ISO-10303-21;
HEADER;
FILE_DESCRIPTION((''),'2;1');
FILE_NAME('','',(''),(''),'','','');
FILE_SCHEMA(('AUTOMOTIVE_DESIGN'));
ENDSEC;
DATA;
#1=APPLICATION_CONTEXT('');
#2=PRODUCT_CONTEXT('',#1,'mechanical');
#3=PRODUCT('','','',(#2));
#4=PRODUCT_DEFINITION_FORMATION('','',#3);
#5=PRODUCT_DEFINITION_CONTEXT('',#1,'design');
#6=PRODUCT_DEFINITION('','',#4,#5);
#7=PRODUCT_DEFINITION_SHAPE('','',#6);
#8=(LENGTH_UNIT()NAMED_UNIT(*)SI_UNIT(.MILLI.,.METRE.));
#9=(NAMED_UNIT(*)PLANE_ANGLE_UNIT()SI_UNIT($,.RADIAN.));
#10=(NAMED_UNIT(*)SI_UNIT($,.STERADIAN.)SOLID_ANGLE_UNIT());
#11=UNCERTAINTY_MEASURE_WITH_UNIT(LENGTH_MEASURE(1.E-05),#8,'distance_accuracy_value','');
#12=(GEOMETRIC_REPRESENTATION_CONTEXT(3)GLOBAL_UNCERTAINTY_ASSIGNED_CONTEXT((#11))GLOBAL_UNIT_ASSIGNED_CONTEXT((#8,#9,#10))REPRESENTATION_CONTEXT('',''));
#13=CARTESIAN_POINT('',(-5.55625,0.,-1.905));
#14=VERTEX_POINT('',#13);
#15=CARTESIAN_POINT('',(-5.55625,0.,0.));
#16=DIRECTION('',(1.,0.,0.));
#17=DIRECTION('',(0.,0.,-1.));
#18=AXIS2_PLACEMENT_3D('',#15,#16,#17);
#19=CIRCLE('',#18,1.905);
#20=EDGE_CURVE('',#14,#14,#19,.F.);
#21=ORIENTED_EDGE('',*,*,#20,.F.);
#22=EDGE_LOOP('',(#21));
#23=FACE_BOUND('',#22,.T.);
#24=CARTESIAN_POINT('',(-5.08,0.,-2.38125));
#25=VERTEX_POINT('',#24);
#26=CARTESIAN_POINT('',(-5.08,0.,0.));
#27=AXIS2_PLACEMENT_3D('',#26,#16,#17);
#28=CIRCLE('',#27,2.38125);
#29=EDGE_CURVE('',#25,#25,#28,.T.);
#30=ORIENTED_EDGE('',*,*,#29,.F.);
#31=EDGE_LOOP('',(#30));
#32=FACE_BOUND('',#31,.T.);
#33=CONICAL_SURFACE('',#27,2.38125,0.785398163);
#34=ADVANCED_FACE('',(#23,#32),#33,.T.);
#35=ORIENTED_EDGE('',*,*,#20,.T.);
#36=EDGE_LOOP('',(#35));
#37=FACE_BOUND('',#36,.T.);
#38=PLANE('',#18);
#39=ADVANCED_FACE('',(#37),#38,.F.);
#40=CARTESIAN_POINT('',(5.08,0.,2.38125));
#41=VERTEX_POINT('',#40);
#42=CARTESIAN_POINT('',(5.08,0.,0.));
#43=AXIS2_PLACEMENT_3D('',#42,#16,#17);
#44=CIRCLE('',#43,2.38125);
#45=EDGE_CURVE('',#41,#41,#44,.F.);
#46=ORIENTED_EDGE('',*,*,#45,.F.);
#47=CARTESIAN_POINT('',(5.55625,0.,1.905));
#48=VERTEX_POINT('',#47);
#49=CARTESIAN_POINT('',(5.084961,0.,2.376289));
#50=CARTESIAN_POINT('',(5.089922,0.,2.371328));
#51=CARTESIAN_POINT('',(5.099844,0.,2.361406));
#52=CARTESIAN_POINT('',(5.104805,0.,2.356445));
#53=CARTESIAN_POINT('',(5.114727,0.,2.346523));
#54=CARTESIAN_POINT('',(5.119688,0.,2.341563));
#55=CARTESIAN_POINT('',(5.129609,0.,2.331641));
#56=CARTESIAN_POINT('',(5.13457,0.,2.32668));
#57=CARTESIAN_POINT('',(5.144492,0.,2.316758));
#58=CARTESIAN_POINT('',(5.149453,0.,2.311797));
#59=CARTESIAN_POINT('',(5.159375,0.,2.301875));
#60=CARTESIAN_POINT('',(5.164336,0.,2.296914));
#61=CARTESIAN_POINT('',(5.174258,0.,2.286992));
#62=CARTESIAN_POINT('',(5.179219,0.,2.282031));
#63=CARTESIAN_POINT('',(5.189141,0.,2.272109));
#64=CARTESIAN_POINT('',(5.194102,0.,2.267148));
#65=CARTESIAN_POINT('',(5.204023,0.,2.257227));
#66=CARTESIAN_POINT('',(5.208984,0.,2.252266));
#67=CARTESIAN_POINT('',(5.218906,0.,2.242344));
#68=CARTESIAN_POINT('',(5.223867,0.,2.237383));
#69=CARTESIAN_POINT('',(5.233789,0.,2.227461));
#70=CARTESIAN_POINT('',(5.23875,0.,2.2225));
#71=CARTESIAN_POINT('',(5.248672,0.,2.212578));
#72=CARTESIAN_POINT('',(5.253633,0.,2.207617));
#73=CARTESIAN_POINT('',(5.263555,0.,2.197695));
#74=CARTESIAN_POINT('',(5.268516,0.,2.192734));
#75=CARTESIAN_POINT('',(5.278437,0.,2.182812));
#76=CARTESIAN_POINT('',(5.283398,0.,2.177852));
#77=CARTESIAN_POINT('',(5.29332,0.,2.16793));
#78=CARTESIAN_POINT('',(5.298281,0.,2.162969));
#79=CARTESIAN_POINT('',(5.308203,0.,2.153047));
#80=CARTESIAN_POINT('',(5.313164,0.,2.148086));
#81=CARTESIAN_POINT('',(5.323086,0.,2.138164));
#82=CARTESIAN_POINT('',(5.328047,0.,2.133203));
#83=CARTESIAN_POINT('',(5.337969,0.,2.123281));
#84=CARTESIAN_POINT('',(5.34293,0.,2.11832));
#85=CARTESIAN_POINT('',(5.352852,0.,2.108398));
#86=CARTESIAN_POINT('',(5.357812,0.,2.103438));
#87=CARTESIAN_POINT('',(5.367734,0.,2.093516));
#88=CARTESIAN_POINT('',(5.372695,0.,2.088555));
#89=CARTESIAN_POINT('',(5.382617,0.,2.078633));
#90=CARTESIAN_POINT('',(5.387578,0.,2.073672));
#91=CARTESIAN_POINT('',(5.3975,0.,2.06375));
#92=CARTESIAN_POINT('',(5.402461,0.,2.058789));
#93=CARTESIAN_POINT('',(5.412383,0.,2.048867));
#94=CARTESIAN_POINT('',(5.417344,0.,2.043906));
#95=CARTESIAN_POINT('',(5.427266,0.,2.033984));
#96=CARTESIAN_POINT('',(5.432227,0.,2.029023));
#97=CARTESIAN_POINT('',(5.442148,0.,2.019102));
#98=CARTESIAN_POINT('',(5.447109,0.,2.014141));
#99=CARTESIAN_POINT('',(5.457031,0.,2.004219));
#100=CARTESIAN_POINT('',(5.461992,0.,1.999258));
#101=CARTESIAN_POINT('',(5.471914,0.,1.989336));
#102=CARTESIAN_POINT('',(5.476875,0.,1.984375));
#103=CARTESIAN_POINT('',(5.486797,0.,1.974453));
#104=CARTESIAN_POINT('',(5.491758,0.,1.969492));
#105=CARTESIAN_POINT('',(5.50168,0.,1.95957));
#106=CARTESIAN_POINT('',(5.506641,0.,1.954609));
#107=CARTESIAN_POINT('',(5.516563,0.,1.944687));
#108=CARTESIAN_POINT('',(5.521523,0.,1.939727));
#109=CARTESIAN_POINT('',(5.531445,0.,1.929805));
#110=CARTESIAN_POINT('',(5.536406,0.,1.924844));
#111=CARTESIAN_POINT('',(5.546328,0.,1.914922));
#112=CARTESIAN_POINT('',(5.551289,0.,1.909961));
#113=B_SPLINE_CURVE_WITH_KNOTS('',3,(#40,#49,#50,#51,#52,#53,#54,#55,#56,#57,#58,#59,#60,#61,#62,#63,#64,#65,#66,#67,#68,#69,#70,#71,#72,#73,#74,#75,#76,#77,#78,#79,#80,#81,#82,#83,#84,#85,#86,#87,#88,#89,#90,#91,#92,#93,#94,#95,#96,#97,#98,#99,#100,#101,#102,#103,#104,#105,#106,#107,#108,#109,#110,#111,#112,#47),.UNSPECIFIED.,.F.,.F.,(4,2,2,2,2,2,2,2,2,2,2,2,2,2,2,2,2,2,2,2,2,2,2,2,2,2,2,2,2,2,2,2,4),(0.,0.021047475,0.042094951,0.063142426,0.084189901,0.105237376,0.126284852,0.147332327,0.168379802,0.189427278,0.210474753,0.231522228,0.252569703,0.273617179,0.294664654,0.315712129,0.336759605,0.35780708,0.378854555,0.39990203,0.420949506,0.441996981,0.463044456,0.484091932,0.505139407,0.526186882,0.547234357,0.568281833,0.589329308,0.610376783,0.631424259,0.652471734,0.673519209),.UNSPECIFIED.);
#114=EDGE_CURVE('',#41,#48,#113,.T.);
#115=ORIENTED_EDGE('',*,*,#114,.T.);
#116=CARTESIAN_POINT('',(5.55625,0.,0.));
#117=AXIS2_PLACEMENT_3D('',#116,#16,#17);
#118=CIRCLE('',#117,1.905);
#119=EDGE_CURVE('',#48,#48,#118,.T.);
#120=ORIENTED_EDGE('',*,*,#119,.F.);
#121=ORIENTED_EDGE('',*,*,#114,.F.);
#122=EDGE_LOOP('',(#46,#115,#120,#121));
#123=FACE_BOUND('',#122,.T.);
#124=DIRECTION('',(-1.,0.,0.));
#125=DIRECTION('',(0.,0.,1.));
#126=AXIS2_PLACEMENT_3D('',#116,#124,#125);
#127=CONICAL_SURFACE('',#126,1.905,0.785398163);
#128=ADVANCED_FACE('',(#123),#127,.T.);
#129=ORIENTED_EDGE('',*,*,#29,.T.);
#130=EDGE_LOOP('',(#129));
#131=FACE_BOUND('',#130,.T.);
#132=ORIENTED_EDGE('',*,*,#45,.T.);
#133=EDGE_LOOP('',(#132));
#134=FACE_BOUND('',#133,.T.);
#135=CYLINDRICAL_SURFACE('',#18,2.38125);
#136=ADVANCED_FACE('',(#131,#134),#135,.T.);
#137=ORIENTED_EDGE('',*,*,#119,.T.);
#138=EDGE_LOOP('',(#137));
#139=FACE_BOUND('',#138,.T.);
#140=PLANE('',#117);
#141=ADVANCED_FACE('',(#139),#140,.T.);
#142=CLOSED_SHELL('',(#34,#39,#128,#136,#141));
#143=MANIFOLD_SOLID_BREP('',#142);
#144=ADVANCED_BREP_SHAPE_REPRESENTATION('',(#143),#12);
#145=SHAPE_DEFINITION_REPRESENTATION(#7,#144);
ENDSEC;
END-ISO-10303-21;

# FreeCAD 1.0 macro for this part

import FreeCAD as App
import Part
import Sketcher

V = App.Vector
Q = App.Units.Quantity


def edges_at(feature, points):
    """Names of the edges that pass closest to the given points."""
    edges = feature.Shape.Edges
    near = lambda p: min(range(len(edges)), key=lambda i: edges[i].distToShape(Part.Vertex(*p))[0])
    return sorted({f"Edge{near(p) + 1}" for p in points})

doc = App.newDocument("Part")
body = doc.addObject("PartDesign::Body", "Body")

sketch1 = body.newObject("Sketcher::SketchObject", "Sketch")
sketch1.AttachmentSupport = (doc.getObject("YZ_Plane"), [""])
sketch1.MapMode = "FlatFace"
sketch1.addGeometry(Part.Circle(V(0, 0, 0), V(0, 0, 1), 2.38125), False)
sketch1.addConstraint(Sketcher.Constraint("Coincident", 0, 3, -1, 1))
sketch1.addConstraint(Sketcher.Constraint("Diameter", 0, Q("0.1875 in")))
pad1 = body.newObject("PartDesign::Pad", "Pad")
pad1.Profile = sketch1
pad1.Type = "TwoLengths"
pad1.Length = Q("0.21875 in")
pad1.Length2 = Q("0.21875 in")
doc.recompute()

chamfer = body.newObject("PartDesign::Chamfer", "Chamfer")
chamfer.Base = (pad1, edges_at(pad1, [(-5.556, 0, 2.381), (5.556, 0, 2.381)]))
chamfer.Size = 0.47625

doc.recompute()
